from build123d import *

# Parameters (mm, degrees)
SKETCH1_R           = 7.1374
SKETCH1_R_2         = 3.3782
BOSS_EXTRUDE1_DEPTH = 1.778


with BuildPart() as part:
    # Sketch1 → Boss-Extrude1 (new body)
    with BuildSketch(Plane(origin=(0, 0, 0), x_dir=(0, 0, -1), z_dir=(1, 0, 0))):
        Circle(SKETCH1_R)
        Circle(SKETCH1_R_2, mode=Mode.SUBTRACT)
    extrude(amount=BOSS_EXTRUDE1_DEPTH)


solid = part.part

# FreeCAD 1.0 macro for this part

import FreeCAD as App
import Part
import Sketcher
from FreeCAD import Vector
Q = App.Units.Quantity

doc = App.newDocument("Part")
body = doc.addObject("PartDesign::Body", "Body")

sketch1 = doc.addObject("Sketcher::SketchObject", "Sketch")
body.addObject(sketch1)
sketch1.AttachmentSupport = (doc.YZ_Plane, [""])
sketch1.MapMode = "FlatFace"
sketch1.addGeometry(Part.Circle(Vector(0, 0, 0), Vector(0, 0, 1), 7.1), False)
sketch1.addGeometry(Part.Circle(Vector(0, 0, 0), Vector(0, 0, 1), 3.4), False)
sketch1.addConstraint(Sketcher.Constraint("Coincident", 0, 3, -1, 1))
sketch1.addConstraint(Sketcher.Constraint("Coincident", 1, 3, -1, 1))
sketch1.addConstraint(Sketcher.Constraint("Diameter", 0, Q("0.562 in")))
sketch1.addConstraint(Sketcher.Constraint("Diameter", 1, Q("0.266 in")))
pad1 = doc.addObject("PartDesign::Pad", "Pad")
body.addObject(pad1)
pad1.Profile = sketch1
pad1.Length = Q("0.07 in")

doc.recompute()
